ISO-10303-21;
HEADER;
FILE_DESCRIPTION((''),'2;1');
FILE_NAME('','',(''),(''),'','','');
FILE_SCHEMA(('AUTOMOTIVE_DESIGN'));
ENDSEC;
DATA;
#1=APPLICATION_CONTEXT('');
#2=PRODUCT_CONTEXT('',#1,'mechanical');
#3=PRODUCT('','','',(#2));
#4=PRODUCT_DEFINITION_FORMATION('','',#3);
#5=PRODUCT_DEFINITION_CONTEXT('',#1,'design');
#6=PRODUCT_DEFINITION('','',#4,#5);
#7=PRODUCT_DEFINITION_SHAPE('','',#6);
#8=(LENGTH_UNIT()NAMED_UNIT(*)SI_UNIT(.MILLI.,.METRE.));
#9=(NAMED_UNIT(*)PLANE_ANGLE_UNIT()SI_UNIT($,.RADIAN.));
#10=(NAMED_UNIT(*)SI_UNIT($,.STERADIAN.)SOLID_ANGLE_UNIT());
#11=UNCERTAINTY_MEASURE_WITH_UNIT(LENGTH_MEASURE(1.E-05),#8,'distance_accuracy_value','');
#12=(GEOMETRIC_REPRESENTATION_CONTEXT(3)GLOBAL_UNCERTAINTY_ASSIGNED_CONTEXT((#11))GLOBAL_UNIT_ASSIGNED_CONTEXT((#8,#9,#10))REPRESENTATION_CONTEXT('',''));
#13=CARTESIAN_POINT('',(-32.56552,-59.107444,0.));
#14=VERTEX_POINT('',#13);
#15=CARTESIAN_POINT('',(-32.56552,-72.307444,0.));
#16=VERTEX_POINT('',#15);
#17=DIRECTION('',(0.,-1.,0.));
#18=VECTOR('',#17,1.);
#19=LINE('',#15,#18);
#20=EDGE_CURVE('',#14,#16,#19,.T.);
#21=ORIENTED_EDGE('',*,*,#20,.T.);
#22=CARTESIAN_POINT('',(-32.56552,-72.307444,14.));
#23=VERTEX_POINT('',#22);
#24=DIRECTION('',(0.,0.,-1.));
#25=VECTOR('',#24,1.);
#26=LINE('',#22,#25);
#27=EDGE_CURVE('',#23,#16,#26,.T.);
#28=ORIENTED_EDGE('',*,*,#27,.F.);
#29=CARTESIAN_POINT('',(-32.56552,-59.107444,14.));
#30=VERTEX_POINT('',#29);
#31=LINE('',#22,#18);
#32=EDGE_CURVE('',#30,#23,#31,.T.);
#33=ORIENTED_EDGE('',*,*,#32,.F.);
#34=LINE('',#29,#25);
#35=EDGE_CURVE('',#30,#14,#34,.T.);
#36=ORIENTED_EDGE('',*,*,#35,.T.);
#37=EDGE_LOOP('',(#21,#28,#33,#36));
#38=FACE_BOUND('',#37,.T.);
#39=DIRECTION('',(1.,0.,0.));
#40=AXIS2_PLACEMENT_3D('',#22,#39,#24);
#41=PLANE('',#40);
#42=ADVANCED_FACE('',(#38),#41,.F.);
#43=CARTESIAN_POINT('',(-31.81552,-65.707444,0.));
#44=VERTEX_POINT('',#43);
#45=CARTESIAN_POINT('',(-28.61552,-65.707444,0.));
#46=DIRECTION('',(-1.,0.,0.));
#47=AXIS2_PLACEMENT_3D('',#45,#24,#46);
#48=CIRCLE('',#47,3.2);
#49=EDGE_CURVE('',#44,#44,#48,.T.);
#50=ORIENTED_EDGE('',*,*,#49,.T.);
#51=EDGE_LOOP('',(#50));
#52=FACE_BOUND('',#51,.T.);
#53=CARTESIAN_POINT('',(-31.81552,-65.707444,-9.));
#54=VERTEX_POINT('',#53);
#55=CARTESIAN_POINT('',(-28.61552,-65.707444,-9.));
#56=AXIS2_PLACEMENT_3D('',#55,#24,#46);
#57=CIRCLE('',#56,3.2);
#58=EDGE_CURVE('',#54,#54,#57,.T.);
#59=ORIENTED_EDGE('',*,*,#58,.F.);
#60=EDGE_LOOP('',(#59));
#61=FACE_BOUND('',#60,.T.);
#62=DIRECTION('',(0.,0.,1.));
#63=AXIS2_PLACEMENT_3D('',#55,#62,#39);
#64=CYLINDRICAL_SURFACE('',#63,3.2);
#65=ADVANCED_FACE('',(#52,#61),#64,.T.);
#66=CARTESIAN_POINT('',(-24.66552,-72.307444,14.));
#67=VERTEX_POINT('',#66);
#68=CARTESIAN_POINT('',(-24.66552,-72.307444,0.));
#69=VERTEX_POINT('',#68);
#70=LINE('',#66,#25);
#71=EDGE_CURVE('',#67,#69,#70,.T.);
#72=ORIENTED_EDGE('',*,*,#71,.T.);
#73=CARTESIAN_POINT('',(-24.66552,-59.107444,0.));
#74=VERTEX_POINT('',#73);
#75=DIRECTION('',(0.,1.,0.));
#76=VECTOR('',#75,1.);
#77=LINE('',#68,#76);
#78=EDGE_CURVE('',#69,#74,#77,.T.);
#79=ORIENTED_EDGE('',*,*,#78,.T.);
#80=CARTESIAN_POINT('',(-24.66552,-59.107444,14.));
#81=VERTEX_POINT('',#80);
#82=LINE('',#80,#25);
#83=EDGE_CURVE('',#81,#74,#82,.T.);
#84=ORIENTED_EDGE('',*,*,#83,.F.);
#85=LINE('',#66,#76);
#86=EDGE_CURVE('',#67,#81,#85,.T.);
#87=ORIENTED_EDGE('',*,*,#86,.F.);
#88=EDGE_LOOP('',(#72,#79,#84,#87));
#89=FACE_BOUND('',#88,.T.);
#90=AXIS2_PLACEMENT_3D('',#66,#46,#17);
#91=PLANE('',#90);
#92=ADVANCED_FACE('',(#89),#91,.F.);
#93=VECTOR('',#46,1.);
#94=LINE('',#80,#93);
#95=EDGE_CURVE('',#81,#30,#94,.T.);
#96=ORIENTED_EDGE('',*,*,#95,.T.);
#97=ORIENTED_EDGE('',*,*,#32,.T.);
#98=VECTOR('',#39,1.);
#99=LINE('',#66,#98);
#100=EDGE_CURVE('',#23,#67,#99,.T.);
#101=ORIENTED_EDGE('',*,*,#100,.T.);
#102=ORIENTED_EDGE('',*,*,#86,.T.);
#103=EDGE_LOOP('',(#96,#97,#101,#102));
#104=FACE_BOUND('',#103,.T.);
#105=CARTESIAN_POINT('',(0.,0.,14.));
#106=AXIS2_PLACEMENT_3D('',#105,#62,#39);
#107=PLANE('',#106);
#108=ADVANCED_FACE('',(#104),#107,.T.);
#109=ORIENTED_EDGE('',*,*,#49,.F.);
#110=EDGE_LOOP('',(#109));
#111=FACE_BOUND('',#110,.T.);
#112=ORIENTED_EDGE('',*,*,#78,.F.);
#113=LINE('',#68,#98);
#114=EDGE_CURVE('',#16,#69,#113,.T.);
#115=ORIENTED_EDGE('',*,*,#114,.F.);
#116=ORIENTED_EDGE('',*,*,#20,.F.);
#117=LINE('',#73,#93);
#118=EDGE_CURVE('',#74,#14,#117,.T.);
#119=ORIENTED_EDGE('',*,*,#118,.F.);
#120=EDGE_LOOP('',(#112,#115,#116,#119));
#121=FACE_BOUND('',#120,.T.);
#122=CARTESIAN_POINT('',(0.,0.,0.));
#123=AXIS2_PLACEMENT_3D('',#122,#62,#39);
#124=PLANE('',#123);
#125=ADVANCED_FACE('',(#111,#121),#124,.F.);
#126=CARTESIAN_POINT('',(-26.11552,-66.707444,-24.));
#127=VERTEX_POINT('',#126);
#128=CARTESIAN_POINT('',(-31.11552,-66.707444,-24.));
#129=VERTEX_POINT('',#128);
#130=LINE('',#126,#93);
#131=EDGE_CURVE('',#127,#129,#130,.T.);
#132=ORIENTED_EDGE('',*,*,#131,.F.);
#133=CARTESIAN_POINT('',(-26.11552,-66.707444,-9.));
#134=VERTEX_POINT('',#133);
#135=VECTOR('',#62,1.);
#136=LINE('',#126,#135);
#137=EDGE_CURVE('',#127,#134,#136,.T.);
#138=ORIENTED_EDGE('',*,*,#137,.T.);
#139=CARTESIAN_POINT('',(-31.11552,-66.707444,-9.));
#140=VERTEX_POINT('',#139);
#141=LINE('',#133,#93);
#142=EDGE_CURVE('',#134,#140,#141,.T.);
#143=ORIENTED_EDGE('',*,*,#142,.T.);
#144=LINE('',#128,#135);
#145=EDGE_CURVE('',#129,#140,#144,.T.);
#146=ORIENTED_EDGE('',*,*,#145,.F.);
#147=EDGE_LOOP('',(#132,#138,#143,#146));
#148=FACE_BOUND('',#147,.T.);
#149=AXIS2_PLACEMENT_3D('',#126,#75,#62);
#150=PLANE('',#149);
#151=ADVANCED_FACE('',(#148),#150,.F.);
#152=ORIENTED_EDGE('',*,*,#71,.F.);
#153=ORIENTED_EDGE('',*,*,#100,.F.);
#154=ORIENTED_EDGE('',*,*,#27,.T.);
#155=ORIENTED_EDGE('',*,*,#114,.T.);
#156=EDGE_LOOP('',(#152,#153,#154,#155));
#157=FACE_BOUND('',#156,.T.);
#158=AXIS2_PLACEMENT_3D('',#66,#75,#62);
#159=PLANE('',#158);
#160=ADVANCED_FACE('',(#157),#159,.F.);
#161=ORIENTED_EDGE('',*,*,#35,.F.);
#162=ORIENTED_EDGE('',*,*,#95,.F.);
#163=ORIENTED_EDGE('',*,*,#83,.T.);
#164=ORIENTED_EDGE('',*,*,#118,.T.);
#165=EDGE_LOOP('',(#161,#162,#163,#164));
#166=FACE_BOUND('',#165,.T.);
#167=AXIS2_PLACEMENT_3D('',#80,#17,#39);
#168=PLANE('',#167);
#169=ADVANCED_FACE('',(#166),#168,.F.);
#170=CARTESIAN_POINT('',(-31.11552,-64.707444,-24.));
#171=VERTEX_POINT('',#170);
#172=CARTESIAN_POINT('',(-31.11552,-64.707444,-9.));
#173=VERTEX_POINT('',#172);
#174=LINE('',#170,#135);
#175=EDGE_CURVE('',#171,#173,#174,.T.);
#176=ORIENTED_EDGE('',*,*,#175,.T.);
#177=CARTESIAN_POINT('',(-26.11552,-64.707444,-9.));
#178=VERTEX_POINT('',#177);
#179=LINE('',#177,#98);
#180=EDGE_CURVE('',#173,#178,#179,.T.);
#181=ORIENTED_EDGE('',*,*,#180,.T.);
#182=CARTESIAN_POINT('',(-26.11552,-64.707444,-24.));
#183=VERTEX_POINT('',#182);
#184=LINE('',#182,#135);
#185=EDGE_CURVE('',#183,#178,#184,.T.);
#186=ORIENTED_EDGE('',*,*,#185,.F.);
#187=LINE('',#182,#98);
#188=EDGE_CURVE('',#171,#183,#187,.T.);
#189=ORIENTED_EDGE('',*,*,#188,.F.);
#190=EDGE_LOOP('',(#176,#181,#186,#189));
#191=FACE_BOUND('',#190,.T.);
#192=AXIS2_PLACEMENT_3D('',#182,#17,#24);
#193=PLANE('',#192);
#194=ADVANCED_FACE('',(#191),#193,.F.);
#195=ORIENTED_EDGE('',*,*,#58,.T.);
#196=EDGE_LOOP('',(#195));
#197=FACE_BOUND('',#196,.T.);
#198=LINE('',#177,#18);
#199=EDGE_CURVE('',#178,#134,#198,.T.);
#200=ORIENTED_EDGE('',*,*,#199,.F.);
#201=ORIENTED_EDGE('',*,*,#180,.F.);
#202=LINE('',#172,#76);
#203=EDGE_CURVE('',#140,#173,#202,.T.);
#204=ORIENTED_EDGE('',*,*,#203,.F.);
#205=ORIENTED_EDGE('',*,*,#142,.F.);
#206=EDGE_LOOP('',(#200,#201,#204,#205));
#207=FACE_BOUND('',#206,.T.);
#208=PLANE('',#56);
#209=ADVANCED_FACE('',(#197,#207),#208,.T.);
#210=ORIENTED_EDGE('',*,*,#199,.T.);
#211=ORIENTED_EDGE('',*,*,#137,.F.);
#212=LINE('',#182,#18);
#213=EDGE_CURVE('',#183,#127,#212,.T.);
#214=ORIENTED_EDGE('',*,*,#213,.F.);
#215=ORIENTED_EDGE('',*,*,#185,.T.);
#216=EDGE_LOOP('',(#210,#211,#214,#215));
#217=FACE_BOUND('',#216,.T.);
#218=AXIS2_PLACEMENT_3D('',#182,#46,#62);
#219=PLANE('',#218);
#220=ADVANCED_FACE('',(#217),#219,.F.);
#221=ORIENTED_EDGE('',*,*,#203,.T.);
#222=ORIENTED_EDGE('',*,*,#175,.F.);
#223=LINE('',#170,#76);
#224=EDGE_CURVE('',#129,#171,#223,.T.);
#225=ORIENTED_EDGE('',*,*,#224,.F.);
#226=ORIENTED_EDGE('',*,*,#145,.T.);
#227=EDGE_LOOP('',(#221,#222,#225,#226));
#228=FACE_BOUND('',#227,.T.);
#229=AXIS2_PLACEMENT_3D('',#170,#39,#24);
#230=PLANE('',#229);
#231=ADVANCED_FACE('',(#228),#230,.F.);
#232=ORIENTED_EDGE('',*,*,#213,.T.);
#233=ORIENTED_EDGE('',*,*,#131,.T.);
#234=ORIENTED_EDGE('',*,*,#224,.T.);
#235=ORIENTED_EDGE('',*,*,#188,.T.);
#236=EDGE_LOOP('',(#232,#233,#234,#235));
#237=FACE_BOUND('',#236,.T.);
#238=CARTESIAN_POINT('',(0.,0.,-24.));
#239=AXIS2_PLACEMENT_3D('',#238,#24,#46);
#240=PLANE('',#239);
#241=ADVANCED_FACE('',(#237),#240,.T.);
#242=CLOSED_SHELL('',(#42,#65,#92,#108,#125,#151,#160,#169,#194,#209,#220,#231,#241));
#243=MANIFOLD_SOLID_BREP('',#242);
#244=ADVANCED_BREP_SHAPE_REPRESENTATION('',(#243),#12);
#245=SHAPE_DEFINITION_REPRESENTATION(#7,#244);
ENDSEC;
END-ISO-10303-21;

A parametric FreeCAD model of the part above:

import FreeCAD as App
import Part
import Sketcher


def add_polygon(sketch, points):
    """Adds a closed chain of lines whose ends are joined by coincident constraints."""
    first, n = sketch.GeometryCount, len(points)
    for a, b in zip(points, points[1:] + points[:1]):
        sketch.addGeometry(Part.LineSegment(App.Vector(*a, 0), App.Vector(*b, 0)), False)
    for i in range(n):
        sketch.addConstraint(Sketcher.Constraint("Coincident", first + i, 2, first + (i + 1) % n, 1))

doc = App.newDocument("Part")
body = doc.addObject("PartDesign::Body", "Body")

sketch1 = body.newObject("Sketcher::SketchObject", "Sketch")
sketch1.AttachmentSupport = (doc.getObject("XY_Plane"), [""])
sketch1.MapMode = "FlatFace"
add_polygon(sketch1, [(-32.56552, -59.107444), (-32.56552, -72.307444), (-24.66552, -72.307444), (-24.66552, -59.107444)])
sketch1.addConstraint(Sketcher.Constraint("Vertical", 0))
sketch1.addConstraint(Sketcher.Constraint("Horizontal", 1))
sketch1.addConstraint(Sketcher.Constraint("Vertical", 2))
sketch1.addConstraint(Sketcher.Constraint("Horizontal", 3))
sketch1.addConstraint(Sketcher.Constraint("DistanceX", 1, 1, 1, 2, 7.9))
sketch1.addConstraint(Sketcher.Constraint("DistanceY", 0, 2, 0, 1, 13.2))
sketch1.addConstraint(Sketcher.Constraint("DistanceX", 0, 2, -1, 1, 32.56552))
sketch1.addConstraint(Sketcher.Constraint("DistanceY", 0, 2, -1, 1, 72.307444))
pad1 = body.newObject("PartDesign::Pad", "Pad")
pad1.Profile = sketch1
pad1.Length = 14

sketch2 = body.newObject("Sketcher::SketchObject", "Sketch001")
sketch2.AttachmentSupport = (doc.getObject("XY_Plane"), [""])
sketch2.MapMode = "FlatFace"
sketch2.addGeometry(Part.Circle(App.Vector(-28.61552, -65.707444, 0), App.Vector(0, 0, 1), 3.2), False)
sketch2.addConstraint(Sketcher.Constraint("Diameter", 0, 6.4))
sketch2.addConstraint(Sketcher.Constraint("DistanceX", 0, 3, -1, 1, 28.61552))
sketch2.addConstraint(Sketcher.Constraint("DistanceY", 0, 3, -1, 1, 65.707444))
pad2 = body.newObject("PartDesign::Pad", "Pad001")
pad2.Profile = sketch2
pad2.Length = 9
pad2.Reversed = True

sketch3 = body.newObject("Sketcher::SketchObject", "Sketch002")
sketch3.AttachmentSupport = (doc.getObject("XY_Plane"), [""])
sketch3.MapMode = "FlatFace"
sketch3.AttachmentOffset = App.Placement(App.Vector(0, 0, -9), App.Rotation())
add_polygon(sketch3, [(-26.11552, -64.707444), (-26.11552, -66.707444), (-31.11552, -66.707444), (-31.11552, -64.707444)])
sketch3.addConstraint(Sketcher.Constraint("Vertical", 0))
sketch3.addConstraint(Sketcher.Constraint("Horizontal", 1))
sketch3.addConstraint(Sketcher.Constraint("Vertical", 2))
sketch3.addConstraint(Sketcher.Constraint("Horizontal", 3))
sketch3.addConstraint(Sketcher.Constraint("DistanceX", 1, 2, 1, 1, 5.0))
sketch3.addConstraint(Sketcher.Constraint("DistanceY", 0, 2, 0, 1, 2.0))
sketch3.addConstraint(Sketcher.Constraint("DistanceX", 0, 2, -1, 1, 26.11552))
sketch3.addConstraint(Sketcher.Constraint("DistanceY", 0, 2, -1, 1, 66.707444))
pad3 = body.newObject("PartDesign::Pad", "Pad002")
pad3.Profile = sketch3
pad3.Length = 15
pad3.Reversed = True

doc.recompute()
